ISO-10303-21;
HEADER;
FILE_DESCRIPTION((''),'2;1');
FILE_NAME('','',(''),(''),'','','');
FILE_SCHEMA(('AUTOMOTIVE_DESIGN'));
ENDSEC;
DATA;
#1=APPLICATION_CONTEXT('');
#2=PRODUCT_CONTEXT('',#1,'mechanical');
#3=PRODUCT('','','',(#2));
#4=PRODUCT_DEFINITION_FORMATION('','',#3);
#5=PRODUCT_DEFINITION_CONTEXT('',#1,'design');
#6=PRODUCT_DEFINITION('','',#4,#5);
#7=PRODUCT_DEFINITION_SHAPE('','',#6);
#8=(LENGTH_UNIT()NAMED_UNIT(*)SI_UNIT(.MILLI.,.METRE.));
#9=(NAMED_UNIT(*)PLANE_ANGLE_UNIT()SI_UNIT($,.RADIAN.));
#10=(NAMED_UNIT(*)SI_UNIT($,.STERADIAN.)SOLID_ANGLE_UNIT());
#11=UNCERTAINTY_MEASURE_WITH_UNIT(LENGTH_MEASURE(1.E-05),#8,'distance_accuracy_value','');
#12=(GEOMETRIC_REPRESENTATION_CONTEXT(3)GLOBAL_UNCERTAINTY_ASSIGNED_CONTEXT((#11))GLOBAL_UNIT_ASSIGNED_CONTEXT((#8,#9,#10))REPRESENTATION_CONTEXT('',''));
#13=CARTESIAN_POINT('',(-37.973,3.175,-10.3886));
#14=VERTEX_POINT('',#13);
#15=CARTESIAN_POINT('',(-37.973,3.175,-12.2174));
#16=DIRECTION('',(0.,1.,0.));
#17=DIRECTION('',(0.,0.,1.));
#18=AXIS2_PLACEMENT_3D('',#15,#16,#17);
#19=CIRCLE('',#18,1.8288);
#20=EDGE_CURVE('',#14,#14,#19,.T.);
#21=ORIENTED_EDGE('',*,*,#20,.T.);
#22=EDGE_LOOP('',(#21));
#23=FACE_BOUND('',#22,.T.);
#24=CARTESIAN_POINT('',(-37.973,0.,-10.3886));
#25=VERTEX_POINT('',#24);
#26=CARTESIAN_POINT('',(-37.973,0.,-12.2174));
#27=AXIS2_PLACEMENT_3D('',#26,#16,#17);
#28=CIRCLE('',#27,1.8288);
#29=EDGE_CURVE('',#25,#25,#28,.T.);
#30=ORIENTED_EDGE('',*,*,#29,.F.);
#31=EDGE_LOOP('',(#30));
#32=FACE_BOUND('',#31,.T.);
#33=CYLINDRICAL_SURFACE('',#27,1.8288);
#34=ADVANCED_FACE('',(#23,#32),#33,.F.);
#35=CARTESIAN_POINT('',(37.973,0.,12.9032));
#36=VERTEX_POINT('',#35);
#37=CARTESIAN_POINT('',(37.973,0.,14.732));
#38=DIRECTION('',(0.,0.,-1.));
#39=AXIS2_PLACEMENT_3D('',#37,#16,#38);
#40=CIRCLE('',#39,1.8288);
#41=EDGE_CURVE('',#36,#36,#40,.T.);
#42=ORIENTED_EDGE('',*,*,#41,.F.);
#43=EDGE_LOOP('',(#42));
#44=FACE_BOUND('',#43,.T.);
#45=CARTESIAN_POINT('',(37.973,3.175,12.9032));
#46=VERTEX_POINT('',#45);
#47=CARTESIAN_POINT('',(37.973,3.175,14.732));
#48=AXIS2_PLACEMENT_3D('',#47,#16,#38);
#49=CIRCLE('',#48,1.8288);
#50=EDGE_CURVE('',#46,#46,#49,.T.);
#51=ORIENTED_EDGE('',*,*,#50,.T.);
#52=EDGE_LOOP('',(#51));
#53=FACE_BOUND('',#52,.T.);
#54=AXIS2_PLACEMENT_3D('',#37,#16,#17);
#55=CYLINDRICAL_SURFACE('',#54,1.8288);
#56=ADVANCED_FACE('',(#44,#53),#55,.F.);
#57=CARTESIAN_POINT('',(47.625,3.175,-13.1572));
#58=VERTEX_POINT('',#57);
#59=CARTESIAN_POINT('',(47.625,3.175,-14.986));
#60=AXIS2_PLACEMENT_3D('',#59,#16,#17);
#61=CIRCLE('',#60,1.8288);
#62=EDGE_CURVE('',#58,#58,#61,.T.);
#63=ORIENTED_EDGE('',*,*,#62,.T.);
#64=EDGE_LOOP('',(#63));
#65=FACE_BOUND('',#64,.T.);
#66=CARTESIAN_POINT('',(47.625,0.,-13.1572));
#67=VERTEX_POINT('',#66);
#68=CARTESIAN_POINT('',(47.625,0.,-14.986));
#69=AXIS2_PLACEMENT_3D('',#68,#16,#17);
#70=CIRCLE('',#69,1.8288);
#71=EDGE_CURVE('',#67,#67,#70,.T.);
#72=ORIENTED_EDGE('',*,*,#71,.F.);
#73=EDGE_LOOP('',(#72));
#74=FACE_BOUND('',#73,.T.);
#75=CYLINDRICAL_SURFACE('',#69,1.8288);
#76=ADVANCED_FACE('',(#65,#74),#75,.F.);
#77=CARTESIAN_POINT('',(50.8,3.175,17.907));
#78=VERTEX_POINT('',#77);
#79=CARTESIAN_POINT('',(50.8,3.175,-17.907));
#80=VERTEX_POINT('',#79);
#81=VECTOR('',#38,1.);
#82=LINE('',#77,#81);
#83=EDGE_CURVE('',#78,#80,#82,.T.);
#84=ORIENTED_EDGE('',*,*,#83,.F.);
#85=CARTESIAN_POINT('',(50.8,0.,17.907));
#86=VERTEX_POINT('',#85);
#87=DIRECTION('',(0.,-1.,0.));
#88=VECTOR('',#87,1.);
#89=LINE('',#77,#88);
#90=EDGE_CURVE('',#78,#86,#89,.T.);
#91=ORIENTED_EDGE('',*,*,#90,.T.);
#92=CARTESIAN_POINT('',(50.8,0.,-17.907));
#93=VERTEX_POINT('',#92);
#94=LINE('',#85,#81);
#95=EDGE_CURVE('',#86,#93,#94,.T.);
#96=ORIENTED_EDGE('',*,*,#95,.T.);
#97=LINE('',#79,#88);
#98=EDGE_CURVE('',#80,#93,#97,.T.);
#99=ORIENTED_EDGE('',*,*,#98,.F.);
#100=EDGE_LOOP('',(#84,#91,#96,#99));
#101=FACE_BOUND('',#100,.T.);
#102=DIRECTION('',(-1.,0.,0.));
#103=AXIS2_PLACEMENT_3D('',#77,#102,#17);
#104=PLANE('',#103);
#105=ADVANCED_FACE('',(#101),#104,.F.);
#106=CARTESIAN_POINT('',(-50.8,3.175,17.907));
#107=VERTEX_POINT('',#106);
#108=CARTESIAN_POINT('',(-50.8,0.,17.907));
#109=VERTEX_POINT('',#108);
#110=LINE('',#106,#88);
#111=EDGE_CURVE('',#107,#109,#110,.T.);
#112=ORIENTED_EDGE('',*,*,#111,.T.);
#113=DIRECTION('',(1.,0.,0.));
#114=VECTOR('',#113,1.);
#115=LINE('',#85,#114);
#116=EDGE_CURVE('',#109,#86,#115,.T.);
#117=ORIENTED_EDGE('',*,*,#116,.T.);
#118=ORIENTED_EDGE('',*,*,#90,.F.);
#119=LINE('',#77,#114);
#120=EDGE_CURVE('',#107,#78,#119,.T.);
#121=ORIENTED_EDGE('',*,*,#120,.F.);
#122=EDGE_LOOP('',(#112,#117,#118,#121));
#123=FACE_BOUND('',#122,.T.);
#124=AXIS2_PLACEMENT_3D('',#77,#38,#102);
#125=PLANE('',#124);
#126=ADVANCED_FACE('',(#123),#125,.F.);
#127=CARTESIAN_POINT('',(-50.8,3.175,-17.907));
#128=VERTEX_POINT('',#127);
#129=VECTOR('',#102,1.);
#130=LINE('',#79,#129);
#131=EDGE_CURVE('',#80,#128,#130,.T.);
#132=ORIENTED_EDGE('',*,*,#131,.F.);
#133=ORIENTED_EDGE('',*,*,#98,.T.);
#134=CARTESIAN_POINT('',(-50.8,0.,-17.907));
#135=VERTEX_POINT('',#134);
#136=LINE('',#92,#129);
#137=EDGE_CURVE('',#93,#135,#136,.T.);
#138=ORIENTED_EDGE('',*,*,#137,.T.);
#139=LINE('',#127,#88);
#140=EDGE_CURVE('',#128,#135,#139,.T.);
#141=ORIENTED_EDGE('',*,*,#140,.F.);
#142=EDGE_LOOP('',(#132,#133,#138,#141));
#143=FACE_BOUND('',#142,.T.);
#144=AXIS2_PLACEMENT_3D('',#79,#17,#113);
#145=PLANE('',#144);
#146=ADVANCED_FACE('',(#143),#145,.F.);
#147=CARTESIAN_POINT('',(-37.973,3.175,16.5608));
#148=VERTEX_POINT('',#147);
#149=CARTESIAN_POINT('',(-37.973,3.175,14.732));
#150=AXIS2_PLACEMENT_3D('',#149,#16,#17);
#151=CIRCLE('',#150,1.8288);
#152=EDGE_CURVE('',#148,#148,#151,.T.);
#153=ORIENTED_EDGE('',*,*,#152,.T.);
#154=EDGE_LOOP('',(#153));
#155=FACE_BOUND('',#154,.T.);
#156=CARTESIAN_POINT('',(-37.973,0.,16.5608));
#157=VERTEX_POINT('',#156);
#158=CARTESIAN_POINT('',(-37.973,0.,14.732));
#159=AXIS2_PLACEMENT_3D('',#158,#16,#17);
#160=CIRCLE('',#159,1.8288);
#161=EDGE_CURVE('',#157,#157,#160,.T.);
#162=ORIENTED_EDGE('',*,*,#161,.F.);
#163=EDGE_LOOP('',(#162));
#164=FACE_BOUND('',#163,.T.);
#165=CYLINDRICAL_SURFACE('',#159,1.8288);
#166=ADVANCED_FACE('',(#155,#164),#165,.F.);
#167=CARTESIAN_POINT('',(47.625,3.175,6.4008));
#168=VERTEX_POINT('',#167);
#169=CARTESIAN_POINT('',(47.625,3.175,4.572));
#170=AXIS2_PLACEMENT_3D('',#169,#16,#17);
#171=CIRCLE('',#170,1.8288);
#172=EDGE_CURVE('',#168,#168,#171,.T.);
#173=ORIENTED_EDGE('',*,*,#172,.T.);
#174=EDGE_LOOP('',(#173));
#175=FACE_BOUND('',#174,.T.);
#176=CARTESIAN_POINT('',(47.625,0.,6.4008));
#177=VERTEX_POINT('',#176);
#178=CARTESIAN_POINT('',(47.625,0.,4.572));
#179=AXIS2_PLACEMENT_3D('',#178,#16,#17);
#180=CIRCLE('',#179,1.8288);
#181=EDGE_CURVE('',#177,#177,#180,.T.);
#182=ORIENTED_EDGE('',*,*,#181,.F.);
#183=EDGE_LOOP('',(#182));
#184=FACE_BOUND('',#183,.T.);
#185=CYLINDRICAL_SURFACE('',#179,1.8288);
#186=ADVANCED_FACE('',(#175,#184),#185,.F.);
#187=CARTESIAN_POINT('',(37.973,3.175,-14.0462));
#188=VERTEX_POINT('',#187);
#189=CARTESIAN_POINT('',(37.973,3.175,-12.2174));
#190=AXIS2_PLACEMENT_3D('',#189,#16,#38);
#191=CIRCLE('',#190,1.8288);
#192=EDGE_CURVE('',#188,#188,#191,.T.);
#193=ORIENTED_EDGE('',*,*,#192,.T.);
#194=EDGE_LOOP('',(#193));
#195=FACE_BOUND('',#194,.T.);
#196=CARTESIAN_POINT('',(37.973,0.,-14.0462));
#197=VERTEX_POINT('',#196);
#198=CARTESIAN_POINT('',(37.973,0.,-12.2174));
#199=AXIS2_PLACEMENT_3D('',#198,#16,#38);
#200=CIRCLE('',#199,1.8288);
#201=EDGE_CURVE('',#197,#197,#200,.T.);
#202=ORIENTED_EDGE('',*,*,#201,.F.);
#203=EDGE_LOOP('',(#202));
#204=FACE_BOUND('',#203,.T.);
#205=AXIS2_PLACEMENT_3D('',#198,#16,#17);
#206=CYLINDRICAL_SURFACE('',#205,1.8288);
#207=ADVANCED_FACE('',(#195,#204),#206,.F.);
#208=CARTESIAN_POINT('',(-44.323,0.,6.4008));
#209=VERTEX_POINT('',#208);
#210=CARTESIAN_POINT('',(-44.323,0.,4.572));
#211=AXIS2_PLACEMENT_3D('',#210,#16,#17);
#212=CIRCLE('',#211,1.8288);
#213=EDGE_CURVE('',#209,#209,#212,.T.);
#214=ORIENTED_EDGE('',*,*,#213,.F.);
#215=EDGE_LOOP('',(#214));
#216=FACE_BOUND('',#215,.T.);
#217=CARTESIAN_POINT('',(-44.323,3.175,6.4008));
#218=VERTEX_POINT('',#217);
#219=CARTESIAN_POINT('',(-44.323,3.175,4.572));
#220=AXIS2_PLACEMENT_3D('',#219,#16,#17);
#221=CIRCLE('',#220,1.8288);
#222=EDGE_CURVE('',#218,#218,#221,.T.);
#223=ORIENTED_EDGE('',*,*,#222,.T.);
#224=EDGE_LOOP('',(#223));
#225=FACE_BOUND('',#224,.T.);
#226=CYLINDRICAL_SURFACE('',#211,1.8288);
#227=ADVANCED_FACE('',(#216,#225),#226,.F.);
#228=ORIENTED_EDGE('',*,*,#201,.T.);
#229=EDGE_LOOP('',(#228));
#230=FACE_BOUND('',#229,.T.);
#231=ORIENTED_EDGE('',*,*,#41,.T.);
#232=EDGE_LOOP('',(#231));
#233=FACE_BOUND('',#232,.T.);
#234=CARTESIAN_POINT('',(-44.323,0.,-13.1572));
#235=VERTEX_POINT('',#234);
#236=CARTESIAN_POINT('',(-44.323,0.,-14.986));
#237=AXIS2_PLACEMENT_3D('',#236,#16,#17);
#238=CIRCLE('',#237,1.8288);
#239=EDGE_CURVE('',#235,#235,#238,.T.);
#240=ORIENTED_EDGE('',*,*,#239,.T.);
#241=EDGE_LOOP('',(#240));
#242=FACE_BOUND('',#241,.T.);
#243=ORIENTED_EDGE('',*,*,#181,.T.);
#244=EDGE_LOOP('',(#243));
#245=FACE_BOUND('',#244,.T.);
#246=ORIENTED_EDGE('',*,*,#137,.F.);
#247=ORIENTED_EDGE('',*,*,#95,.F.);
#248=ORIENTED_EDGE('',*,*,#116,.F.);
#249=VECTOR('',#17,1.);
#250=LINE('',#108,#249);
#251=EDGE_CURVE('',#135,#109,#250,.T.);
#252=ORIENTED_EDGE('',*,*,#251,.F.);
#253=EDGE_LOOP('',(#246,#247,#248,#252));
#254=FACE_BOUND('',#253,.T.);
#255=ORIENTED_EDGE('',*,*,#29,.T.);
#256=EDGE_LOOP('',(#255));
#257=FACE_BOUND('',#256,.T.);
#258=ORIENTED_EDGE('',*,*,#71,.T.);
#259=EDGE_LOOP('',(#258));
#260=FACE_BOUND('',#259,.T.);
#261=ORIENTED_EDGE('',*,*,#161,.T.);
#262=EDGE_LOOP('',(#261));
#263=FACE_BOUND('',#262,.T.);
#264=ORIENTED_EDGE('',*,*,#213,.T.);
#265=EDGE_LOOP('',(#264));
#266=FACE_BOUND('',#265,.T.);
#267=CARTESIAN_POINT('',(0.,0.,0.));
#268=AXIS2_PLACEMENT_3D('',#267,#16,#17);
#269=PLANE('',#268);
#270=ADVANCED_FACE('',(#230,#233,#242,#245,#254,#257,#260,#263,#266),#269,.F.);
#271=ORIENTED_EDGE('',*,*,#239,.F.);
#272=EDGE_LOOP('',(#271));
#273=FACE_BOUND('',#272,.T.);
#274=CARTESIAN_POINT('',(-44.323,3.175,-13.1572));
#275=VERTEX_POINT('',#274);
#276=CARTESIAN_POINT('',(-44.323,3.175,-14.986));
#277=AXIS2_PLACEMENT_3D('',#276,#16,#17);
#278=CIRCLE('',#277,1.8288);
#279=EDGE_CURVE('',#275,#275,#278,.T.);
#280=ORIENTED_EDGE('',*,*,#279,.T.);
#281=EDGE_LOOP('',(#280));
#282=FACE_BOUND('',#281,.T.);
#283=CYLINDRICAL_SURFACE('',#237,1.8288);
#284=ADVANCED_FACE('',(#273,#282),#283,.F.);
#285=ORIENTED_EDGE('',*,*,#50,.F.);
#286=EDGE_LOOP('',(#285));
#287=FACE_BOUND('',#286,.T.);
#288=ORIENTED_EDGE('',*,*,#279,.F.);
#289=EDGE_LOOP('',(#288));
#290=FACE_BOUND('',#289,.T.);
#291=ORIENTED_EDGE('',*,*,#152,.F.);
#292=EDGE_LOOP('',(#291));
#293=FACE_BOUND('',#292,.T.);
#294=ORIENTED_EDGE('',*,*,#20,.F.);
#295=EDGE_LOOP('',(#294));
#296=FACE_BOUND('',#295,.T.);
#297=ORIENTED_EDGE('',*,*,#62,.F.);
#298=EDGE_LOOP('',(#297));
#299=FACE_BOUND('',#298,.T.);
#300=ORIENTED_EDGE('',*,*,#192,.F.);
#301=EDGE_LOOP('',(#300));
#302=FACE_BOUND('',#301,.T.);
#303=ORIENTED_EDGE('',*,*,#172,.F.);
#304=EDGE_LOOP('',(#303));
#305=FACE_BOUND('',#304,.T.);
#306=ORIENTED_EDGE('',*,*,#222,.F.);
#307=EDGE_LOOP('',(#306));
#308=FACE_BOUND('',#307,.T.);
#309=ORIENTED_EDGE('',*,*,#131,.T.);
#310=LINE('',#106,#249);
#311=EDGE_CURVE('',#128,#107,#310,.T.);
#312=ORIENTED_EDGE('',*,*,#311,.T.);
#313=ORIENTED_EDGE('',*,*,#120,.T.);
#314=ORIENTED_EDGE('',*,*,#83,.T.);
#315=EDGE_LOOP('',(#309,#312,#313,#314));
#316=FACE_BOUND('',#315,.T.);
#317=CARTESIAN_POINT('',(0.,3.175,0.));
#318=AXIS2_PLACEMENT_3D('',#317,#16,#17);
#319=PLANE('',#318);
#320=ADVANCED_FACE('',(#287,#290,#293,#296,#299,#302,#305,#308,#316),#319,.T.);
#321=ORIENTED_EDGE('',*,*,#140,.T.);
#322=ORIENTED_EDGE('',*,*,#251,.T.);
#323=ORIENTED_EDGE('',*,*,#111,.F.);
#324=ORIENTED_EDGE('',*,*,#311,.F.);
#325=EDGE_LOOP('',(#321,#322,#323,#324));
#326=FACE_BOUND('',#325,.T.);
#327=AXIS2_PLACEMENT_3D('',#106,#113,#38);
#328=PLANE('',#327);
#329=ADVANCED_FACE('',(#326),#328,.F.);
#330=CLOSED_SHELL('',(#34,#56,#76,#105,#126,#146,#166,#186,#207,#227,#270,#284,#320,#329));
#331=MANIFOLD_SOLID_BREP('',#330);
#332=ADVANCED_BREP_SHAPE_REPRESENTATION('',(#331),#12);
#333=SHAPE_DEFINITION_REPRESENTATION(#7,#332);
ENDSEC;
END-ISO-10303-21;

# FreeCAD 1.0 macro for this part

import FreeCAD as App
import Part
import Sketcher

V = App.Vector
Q = App.Units.Quantity


def add_polygon(sketch, points):
    """Adds a closed chain of lines whose ends are joined by coincident constraints."""
    first, n = sketch.GeometryCount, len(points)
    for a, b in zip(points, points[1:] + points[:1]):
        sketch.addGeometry(Part.LineSegment(App.Vector(*a, 0), App.Vector(*b, 0)), False)
    for i in range(n):
        sketch.addConstraint(Sketcher.Constraint("Coincident", first + i, 2, first + (i + 1) % n, 1))

doc = App.newDocument("Part")
body = doc.addObject("PartDesign::Body", "Body")

# Sketch on XZ plane
sketch1 = body.newObject("Sketcher::SketchObject", "Sketch")
sketch1.AttachmentSupport = (doc.getObject("XZ_Plane"), [""])
sketch1.MapMode = "FlatFace"
add_polygon(sketch1, [(-50.8, -17.907), (-50.8, 17.907), (50.8, 17.907), (50.8, -17.907)])  # lines 0-3
sketch1.addConstraint([
    Sketcher.Constraint("Vertical", 0),
    Sketcher.Constraint("Horizontal", 1),
    Sketcher.Constraint("Vertical", 2),
    Sketcher.Constraint("Horizontal", 3),
    Sketcher.Constraint("Symmetric", 0, 2, 2, 2, -1, 1),
    Sketcher.Constraint("DistanceX", 1, 1, 1, 2, Q("4 in")),
    Sketcher.Constraint("DistanceY", 0, 1, 0, 2, Q("1.41 in")),
])
pad1 = body.newObject("PartDesign::Pad", "Pad")
pad1.Profile = sketch1
pad1.Length = Q("0.125 in")
pad1.Reversed = True

# Sketch on XZ plane
sketch2 = body.newObject("Sketcher::SketchObject", "Sketch001")
sketch2.AttachmentSupport = (doc.getObject("XZ_Plane"), [""])
sketch2.MapMode = "FlatFace"
sketch2.AttachmentOffset = App.Placement(V(0, 0, -0.125 * 25.4), App.Rotation())
sketch2.addGeometry([
    Part.Circle(V(47.625, -14.986, 0), V(0, 0, 1), 1.8288),
    Part.Circle(V(47.625, 4.572, 0), V(0, 0, 1), 1.8288),
    Part.Circle(V(-44.323, -14.986, 0), V(0, 0, 1), 1.8288),
    Part.Circle(V(-44.323, 4.572, 0), V(0, 0, 1), 1.8288),
], False)
sketch2.addConstraint([
    Sketcher.Constraint("Equal", 0, 1),
    Sketcher.Constraint("Equal", 1, 2),
    Sketcher.Constraint("Equal", 2, 3),
    Sketcher.Constraint("Horizontal", 0, 3, 2, 3),
    Sketcher.Constraint("Horizontal", 1, 3, 3, 3),
    Sketcher.Constraint("Vertical", 0, 3, 1, 3),
    Sketcher.Constraint("Vertical", 2, 3, 3, 3),
    Sketcher.Constraint("Diameter", 0, Q("0.144 in")),
    Sketcher.Constraint("DistanceY", 0, 3, -1, 1, Q("0.59 in")),
    Sketcher.Constraint("DistanceY", -1, 1, 1, 3, Q("0.18 in")),
    Sketcher.Constraint("DistanceX", 2, 3, 0, 3, Q("3.62 in")),
    Sketcher.Constraint("DistanceX", -1, 1, 0, 3, Q("1.875 in")),
])
pocket1 = body.newObject("PartDesign::Pocket", "Pocket")
pocket1.Profile = sketch2
pocket1.Type = "ThroughAll"
pocket1.Reversed = True

# Sketch on XZ plane
sketch3 = body.newObject("Sketcher::SketchObject", "Sketch002")
sketch3.AttachmentSupport = (doc.getObject("XZ_Plane"), [""])
sketch3.MapMode = "FlatFace"
sketch3.AttachmentOffset = App.Placement(V(0, 0, -0.125 * 25.4), App.Rotation())
sketch3.addGeometry([
    Part.Circle(V(-37.973, 14.732, 0), V(0, 0, 1), 1.8288),
    Part.Circle(V(-37.973, -12.2174, 0), V(0, 0, 1), 1.8288),
    Part.Circle(V(37.973, 14.732, 0), V(0, 0, 1), 1.8288),
    Part.Circle(V(37.973, -12.2174, 0), V(0, 0, 1), 1.8288),
], False)
sketch3.addConstraint([
    Sketcher.Constraint("Equal", 0, 1),
    Sketcher.Constraint("Equal", 1, 2),
    Sketcher.Constraint("Equal", 2, 3),
    Sketcher.Constraint("Symmetric", 0, 3, 2, 3, -2),
    Sketcher.Constraint("Symmetric", 1, 3, 3, 3, -2),
    Sketcher.Constraint("Vertical", 0, 3, 1, 3),
    Sketcher.Constraint("Diameter", 0, Q("0.144 in")),
    Sketcher.Constraint("DistanceY", -1, 1, 0, 3, Q("0.58 in")),
    Sketcher.Constraint("DistanceX", 0, 3, 2, 3, Q("2.99 in")),
    Sketcher.Constraint("DistanceY", 1, 3, -1, 1, Q("0.481 in")),
])
pocket2 = body.newObject("PartDesign::Pocket", "Pocket001")
pocket2.Profile = sketch3
pocket2.Type = "ThroughAll"
pocket2.Reversed = True

doc.recompute()
